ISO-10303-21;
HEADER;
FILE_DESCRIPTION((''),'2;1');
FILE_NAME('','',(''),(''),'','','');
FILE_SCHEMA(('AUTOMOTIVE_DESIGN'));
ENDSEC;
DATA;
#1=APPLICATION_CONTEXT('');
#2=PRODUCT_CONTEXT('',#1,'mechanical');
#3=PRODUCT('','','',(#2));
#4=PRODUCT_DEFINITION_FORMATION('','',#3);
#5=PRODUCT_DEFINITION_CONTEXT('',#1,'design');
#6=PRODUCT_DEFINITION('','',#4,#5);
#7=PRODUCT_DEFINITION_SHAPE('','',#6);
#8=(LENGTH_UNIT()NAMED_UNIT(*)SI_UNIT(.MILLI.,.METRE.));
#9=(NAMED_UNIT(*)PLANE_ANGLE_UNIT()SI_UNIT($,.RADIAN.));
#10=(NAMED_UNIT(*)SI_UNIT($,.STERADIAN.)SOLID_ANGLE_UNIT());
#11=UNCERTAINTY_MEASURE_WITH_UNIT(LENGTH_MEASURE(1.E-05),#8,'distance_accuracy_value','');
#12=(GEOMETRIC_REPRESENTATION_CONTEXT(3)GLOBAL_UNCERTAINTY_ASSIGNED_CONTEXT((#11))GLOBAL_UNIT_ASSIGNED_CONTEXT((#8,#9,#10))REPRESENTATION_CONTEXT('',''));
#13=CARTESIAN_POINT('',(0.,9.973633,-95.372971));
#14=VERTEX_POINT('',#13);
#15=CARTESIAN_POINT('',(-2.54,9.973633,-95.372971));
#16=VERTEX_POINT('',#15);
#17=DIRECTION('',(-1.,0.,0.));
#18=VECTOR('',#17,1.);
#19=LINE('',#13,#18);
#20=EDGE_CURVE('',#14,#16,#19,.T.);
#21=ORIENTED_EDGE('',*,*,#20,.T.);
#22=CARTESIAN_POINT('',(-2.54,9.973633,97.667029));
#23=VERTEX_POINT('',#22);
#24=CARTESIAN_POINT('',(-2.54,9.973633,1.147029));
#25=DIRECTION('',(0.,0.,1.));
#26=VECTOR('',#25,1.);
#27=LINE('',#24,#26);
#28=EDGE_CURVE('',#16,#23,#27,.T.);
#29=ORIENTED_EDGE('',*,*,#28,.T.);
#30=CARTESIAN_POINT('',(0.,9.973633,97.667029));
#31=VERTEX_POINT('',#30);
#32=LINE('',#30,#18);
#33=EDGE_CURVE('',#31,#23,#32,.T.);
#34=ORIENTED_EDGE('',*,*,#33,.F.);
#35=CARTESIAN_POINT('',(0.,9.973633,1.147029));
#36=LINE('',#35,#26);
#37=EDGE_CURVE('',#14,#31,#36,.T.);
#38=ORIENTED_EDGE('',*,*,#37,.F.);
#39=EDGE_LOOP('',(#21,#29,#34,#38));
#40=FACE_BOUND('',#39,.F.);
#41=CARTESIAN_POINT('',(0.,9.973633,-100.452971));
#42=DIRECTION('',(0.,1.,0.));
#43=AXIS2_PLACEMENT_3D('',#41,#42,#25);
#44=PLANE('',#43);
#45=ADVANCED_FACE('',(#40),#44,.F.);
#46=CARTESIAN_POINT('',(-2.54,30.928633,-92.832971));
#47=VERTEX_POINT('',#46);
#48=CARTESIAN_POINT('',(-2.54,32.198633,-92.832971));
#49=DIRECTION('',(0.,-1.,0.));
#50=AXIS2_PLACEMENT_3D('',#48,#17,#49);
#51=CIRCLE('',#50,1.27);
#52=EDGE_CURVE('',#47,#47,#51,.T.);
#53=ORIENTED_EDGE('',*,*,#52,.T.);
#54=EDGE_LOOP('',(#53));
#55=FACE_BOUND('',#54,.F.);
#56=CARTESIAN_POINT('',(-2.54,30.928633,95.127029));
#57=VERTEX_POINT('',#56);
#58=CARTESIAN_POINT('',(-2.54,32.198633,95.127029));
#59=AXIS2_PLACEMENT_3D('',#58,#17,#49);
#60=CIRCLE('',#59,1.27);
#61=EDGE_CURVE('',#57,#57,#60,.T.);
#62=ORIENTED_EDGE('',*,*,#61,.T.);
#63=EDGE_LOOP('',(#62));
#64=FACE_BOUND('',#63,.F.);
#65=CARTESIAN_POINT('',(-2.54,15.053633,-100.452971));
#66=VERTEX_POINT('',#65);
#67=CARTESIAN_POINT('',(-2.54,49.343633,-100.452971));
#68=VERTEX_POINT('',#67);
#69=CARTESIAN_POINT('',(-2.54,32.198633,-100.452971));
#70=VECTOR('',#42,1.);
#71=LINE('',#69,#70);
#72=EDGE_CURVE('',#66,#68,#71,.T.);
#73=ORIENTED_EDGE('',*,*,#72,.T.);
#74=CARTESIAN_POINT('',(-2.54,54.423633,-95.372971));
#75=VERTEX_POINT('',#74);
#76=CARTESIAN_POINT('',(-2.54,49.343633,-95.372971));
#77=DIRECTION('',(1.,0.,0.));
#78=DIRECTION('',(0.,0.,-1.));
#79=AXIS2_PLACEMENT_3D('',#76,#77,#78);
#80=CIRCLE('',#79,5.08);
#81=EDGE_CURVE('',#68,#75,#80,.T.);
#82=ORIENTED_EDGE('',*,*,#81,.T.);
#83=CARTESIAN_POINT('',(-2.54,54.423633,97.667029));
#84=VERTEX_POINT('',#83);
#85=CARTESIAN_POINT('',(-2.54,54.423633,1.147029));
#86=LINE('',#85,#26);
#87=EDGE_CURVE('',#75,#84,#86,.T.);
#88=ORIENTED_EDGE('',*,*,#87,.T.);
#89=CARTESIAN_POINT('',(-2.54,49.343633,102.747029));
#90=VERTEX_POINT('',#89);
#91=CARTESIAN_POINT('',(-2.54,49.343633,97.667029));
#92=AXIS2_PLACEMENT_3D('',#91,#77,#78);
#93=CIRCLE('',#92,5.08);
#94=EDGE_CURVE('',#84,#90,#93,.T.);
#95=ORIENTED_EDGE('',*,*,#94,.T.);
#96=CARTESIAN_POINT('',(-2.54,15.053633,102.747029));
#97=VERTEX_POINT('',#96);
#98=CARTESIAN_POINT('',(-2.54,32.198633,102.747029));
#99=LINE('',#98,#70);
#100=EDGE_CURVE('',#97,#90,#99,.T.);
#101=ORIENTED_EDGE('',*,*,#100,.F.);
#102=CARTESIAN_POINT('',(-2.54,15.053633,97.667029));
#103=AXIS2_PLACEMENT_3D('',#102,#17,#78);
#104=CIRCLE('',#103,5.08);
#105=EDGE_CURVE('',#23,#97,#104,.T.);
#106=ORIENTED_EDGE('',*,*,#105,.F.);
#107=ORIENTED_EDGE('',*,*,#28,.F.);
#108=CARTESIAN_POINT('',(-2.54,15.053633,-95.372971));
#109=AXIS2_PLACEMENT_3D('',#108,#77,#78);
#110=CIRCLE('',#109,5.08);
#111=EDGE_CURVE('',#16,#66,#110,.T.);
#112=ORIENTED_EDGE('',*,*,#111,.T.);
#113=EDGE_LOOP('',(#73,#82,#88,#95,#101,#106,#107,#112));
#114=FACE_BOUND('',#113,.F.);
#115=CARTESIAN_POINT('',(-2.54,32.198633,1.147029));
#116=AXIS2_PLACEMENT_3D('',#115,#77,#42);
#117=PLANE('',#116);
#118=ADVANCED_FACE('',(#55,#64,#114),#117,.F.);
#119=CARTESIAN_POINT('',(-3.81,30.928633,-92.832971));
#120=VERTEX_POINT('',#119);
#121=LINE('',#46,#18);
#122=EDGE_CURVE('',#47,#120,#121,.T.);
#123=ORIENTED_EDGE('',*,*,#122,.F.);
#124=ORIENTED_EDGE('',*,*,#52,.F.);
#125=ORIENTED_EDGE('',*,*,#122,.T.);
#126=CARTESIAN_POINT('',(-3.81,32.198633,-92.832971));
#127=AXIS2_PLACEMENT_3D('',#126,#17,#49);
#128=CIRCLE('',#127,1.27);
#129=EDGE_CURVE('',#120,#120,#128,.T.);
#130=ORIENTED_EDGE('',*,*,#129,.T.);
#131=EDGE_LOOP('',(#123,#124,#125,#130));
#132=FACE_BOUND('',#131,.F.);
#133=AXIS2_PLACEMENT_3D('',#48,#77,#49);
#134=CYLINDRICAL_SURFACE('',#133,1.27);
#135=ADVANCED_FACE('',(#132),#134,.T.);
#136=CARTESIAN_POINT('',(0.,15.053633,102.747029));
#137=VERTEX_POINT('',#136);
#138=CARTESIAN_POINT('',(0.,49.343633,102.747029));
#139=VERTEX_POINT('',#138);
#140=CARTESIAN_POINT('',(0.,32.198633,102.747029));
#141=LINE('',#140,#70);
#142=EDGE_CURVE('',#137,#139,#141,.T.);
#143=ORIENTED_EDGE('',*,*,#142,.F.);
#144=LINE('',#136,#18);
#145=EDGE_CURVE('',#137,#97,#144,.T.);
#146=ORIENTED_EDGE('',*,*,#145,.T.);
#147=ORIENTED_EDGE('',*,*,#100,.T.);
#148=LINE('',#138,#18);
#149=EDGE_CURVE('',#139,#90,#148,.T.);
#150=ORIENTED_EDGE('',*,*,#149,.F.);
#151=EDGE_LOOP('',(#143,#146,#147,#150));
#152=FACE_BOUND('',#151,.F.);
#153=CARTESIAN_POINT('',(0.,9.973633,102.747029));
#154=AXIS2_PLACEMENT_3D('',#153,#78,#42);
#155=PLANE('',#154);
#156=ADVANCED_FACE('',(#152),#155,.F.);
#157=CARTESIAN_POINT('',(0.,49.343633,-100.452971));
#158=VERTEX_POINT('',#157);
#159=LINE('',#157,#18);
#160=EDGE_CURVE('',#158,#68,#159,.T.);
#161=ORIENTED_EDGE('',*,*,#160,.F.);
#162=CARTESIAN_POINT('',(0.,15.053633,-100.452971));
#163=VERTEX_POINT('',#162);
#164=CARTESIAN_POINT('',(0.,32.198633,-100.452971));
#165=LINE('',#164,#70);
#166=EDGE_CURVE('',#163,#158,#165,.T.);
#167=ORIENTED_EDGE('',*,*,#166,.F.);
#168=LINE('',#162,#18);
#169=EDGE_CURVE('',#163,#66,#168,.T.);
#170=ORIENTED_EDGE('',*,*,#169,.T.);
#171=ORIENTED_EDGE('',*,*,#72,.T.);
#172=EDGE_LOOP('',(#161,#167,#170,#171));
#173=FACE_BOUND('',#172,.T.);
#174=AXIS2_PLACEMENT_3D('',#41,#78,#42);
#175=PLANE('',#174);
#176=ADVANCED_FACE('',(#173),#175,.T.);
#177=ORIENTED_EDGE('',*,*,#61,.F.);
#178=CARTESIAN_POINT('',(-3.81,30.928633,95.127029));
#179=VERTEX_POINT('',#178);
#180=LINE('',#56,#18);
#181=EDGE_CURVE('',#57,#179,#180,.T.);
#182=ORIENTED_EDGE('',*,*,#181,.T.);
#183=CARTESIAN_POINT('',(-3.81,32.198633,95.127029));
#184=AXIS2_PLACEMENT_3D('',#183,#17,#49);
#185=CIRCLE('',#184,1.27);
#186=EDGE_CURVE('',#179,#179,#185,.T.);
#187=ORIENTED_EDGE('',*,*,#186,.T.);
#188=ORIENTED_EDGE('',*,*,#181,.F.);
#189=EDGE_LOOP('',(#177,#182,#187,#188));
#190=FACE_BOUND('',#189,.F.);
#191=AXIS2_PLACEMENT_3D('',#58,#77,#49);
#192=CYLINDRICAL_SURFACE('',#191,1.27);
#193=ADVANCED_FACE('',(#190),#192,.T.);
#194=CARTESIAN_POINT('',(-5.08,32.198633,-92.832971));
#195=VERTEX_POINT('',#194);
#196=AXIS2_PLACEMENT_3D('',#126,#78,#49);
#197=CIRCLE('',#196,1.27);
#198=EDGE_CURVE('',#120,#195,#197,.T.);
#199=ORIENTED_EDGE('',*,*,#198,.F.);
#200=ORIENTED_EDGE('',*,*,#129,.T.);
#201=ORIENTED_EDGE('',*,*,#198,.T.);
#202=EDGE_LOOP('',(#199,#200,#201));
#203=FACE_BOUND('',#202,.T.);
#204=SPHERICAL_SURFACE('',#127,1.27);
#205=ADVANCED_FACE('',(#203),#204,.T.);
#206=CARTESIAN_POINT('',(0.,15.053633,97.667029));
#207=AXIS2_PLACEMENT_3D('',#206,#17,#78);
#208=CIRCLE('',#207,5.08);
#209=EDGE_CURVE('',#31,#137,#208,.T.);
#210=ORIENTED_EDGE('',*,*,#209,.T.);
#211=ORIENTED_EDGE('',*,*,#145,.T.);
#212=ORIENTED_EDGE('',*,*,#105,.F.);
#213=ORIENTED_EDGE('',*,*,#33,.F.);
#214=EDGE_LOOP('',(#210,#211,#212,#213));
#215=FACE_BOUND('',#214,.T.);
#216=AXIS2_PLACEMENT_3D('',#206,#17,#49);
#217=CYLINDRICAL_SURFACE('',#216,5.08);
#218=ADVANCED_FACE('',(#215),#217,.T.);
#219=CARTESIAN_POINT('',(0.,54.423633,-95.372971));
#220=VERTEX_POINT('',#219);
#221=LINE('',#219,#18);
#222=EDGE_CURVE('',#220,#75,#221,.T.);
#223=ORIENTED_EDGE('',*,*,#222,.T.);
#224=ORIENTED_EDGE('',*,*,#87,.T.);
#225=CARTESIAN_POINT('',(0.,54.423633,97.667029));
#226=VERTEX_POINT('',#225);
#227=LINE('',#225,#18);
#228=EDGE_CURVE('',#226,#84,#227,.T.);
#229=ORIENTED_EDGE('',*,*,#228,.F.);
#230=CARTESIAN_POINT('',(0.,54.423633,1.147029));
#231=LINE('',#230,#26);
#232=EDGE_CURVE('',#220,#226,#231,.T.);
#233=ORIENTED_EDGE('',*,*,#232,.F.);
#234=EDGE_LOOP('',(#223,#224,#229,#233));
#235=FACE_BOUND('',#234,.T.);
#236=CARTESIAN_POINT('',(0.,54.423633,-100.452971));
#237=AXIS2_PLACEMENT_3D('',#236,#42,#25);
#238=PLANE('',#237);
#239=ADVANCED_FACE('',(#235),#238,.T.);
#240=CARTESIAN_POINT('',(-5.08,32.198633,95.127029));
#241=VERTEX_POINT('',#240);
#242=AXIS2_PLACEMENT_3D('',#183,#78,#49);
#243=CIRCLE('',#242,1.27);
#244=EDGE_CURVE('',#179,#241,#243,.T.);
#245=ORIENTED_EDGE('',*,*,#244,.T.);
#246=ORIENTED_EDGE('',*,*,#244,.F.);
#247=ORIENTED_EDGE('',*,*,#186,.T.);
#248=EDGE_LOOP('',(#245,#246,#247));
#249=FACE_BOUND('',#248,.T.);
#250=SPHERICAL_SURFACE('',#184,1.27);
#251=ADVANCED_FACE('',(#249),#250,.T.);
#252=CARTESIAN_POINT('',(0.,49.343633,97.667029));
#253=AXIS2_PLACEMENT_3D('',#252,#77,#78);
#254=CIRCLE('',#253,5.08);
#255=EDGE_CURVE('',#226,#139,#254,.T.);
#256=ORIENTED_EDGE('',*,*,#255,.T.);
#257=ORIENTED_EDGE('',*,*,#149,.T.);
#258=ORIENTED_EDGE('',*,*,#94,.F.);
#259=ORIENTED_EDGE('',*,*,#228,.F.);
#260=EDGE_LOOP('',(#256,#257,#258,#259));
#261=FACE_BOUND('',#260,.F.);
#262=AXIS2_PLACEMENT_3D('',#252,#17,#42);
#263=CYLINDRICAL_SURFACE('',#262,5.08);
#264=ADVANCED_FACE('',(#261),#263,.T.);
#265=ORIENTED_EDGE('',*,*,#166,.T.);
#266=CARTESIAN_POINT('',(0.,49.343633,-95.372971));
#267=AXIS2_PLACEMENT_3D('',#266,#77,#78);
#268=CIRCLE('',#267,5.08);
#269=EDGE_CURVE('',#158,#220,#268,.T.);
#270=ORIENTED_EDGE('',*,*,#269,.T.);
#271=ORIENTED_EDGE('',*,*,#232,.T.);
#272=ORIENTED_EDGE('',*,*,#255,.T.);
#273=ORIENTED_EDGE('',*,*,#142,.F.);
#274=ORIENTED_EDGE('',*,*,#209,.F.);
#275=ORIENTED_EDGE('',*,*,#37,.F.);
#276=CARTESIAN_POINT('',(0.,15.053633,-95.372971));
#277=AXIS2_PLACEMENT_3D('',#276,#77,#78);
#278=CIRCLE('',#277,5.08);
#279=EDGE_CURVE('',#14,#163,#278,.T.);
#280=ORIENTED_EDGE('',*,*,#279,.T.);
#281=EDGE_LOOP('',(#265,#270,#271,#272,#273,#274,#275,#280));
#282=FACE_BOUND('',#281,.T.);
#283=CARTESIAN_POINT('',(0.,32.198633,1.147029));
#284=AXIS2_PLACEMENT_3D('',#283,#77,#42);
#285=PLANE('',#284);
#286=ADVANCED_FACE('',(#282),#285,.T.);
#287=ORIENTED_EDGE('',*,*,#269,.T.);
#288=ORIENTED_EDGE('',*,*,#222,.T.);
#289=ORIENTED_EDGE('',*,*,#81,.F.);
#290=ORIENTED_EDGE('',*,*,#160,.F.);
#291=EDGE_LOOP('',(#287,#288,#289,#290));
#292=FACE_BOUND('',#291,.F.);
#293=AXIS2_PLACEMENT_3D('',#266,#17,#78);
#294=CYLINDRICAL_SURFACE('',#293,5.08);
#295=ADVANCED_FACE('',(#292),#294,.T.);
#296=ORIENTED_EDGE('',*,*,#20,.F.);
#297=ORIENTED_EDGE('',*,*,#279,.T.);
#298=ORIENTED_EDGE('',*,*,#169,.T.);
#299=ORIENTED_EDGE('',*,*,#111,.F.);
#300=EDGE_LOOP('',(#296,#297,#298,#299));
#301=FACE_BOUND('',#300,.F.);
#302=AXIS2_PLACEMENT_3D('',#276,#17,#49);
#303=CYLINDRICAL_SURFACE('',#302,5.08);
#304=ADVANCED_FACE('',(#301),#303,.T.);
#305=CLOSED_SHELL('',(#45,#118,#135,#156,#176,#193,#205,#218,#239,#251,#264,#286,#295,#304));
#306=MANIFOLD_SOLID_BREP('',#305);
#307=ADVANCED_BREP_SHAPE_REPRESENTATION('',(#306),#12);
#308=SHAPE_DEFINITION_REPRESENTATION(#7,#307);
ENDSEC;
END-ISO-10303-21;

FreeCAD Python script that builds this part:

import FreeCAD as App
import Part
import Sketcher
from FreeCAD import Vector
Q = App.Units.Quantity


def edges_at(feature, points):
    """Names of the edges that pass closest to the given points."""
    edges = feature.Shape.Edges
    near = lambda p: min(range(len(edges)), key=lambda i: edges[i].distToShape(Part.Vertex(*p))[0])
    return sorted({f"Edge{near(p) + 1}" for p in points})

doc = App.newDocument("Part")
body = doc.addObject("PartDesign::Body", "Body")

sketch1 = doc.addObject("Sketcher::SketchObject", "Sketch")
body.addObject(sketch1)
sketch1.AttachmentSupport = (doc.YZ_Plane, [""])
sketch1.MapMode = "FlatFace"
sketch1.addGeometry([
    Part.LineSegment(Vector(10, 103, 0), Vector(10, -100, 0)),
    Part.LineSegment(Vector(10, -100, 0), Vector(54, -100, 0)),
    Part.LineSegment(Vector(54, -100, 0), Vector(54, 103, 0)),
    Part.LineSegment(Vector(54, 103, 0), Vector(10, 103, 0)),
], False)
sketch1.addConstraint([
    Sketcher.Constraint("Coincident", 0, 2, 1, 1),
    Sketcher.Constraint("Coincident", 1, 2, 2, 1),
    Sketcher.Constraint("Coincident", 2, 2, 3, 1),
    Sketcher.Constraint("Coincident", 3, 2, 0, 1),
    Sketcher.Constraint("Vertical", 0),
    Sketcher.Constraint("Horizontal", 1),
    Sketcher.Constraint("Vertical", 2),
    Sketcher.Constraint("Horizontal", 3),
    Sketcher.Constraint("DistanceY", 0, 2, 0, 1, Q("8 in")),
    Sketcher.Constraint("DistanceX", 1, 1, 1, 2, Q("1.75 in")),
    Sketcher.Constraint("DistanceY", 0, 2, -1, 1, 100.452971),
    Sketcher.Constraint("DistanceX", -1, 1, 0, 2, 9.973633),
])
pad1 = doc.addObject("PartDesign::Pad", "Pad")
body.addObject(pad1)
pad1.Profile = sketch1
pad1.Length = Q("0.1 in")
pad1.Reversed = True
doc.recompute()

fillet = doc.addObject("PartDesign::Fillet", "Fillet")
body.addObject(fillet)
fillet.Base = (pad1, edges_at(pad1, [
    (-1.27, 54.424, 102.747),
    (-1.27, 9.974, 102.747),
    (-1.27, 54.424, -100.453),
    (-1.27, 9.974, -100.453),
]))
fillet.Radius = Q("0.2 in")

sketch2 = doc.addObject("Sketcher::SketchObject", "Sketch001")
body.addObject(sketch2)
sketch2.AttachmentSupport = (doc.YZ_Plane, [""])
sketch2.MapMode = "FlatFace"
sketch2.AttachmentOffset = App.Placement(Vector(0, 0, -0.1 * 25.4), App.Rotation())
sketch2.addGeometry(Part.Circle(Vector(32.2, 95.1, 0), Vector(0, 0, 1), 1.3), False)
sketch2.addConstraint([
    Sketcher.Constraint("Diameter", 0, Q("0.1 in")),
    Sketcher.Constraint("DistanceY", -1, 1, 0, 3, 95.127029),
    Sketcher.Constraint("DistanceX", -1, 1, 0, 3, 32.198633),
])
pad2 = doc.addObject("PartDesign::Pad", "Pad001")
body.addObject(pad2)
pad2.Profile = sketch2
pad2.Length = Q("0.1 in")
pad2.Reversed = True
doc.recompute()

fillet2 = doc.addObject("PartDesign::Fillet", "Fillet001")
body.addObject(fillet2)
fillet2.Base = (pad2, edges_at(pad2, [(-5.08, 33.469, 95.127)]))
fillet2.Radius = Q("0.05 in")

sketch3 = doc.addObject("Sketcher::SketchObject", "Sketch002")
body.addObject(sketch3)
sketch3.AttachmentSupport = (doc.YZ_Plane, [""])
sketch3.MapMode = "FlatFace"
sketch3.AttachmentOffset = App.Placement(Vector(0, 0, -0.1 * 25.4), App.Rotation())
sketch3.addGeometry(Part.Circle(Vector(32.2, -92.8, 0), Vector(0, 0, 1), 1.3), False)
sketch3.addConstraint([
    Sketcher.Constraint("Diameter", 0, Q("0.1 in")),
    Sketcher.Constraint("DistanceY", 0, 3, -1, 1, 92.832971),
    Sketcher.Constraint("DistanceX", -1, 1, 0, 3, 32.198633),
])
pad3 = doc.addObject("PartDesign::Pad", "Pad002")
body.addObject(pad3)
pad3.Profile = sketch3
pad3.Length = Q("0.1 in")
pad3.Reversed = True
doc.recompute()

fillet3 = doc.addObject("PartDesign::Fillet", "Fillet002")
body.addObject(fillet3)
fillet3.Base = (pad3, edges_at(pad3, [(-5.08, 33.469, -92.833)]))
fillet3.Radius = Q("0.05 in")

doc.recompute()
